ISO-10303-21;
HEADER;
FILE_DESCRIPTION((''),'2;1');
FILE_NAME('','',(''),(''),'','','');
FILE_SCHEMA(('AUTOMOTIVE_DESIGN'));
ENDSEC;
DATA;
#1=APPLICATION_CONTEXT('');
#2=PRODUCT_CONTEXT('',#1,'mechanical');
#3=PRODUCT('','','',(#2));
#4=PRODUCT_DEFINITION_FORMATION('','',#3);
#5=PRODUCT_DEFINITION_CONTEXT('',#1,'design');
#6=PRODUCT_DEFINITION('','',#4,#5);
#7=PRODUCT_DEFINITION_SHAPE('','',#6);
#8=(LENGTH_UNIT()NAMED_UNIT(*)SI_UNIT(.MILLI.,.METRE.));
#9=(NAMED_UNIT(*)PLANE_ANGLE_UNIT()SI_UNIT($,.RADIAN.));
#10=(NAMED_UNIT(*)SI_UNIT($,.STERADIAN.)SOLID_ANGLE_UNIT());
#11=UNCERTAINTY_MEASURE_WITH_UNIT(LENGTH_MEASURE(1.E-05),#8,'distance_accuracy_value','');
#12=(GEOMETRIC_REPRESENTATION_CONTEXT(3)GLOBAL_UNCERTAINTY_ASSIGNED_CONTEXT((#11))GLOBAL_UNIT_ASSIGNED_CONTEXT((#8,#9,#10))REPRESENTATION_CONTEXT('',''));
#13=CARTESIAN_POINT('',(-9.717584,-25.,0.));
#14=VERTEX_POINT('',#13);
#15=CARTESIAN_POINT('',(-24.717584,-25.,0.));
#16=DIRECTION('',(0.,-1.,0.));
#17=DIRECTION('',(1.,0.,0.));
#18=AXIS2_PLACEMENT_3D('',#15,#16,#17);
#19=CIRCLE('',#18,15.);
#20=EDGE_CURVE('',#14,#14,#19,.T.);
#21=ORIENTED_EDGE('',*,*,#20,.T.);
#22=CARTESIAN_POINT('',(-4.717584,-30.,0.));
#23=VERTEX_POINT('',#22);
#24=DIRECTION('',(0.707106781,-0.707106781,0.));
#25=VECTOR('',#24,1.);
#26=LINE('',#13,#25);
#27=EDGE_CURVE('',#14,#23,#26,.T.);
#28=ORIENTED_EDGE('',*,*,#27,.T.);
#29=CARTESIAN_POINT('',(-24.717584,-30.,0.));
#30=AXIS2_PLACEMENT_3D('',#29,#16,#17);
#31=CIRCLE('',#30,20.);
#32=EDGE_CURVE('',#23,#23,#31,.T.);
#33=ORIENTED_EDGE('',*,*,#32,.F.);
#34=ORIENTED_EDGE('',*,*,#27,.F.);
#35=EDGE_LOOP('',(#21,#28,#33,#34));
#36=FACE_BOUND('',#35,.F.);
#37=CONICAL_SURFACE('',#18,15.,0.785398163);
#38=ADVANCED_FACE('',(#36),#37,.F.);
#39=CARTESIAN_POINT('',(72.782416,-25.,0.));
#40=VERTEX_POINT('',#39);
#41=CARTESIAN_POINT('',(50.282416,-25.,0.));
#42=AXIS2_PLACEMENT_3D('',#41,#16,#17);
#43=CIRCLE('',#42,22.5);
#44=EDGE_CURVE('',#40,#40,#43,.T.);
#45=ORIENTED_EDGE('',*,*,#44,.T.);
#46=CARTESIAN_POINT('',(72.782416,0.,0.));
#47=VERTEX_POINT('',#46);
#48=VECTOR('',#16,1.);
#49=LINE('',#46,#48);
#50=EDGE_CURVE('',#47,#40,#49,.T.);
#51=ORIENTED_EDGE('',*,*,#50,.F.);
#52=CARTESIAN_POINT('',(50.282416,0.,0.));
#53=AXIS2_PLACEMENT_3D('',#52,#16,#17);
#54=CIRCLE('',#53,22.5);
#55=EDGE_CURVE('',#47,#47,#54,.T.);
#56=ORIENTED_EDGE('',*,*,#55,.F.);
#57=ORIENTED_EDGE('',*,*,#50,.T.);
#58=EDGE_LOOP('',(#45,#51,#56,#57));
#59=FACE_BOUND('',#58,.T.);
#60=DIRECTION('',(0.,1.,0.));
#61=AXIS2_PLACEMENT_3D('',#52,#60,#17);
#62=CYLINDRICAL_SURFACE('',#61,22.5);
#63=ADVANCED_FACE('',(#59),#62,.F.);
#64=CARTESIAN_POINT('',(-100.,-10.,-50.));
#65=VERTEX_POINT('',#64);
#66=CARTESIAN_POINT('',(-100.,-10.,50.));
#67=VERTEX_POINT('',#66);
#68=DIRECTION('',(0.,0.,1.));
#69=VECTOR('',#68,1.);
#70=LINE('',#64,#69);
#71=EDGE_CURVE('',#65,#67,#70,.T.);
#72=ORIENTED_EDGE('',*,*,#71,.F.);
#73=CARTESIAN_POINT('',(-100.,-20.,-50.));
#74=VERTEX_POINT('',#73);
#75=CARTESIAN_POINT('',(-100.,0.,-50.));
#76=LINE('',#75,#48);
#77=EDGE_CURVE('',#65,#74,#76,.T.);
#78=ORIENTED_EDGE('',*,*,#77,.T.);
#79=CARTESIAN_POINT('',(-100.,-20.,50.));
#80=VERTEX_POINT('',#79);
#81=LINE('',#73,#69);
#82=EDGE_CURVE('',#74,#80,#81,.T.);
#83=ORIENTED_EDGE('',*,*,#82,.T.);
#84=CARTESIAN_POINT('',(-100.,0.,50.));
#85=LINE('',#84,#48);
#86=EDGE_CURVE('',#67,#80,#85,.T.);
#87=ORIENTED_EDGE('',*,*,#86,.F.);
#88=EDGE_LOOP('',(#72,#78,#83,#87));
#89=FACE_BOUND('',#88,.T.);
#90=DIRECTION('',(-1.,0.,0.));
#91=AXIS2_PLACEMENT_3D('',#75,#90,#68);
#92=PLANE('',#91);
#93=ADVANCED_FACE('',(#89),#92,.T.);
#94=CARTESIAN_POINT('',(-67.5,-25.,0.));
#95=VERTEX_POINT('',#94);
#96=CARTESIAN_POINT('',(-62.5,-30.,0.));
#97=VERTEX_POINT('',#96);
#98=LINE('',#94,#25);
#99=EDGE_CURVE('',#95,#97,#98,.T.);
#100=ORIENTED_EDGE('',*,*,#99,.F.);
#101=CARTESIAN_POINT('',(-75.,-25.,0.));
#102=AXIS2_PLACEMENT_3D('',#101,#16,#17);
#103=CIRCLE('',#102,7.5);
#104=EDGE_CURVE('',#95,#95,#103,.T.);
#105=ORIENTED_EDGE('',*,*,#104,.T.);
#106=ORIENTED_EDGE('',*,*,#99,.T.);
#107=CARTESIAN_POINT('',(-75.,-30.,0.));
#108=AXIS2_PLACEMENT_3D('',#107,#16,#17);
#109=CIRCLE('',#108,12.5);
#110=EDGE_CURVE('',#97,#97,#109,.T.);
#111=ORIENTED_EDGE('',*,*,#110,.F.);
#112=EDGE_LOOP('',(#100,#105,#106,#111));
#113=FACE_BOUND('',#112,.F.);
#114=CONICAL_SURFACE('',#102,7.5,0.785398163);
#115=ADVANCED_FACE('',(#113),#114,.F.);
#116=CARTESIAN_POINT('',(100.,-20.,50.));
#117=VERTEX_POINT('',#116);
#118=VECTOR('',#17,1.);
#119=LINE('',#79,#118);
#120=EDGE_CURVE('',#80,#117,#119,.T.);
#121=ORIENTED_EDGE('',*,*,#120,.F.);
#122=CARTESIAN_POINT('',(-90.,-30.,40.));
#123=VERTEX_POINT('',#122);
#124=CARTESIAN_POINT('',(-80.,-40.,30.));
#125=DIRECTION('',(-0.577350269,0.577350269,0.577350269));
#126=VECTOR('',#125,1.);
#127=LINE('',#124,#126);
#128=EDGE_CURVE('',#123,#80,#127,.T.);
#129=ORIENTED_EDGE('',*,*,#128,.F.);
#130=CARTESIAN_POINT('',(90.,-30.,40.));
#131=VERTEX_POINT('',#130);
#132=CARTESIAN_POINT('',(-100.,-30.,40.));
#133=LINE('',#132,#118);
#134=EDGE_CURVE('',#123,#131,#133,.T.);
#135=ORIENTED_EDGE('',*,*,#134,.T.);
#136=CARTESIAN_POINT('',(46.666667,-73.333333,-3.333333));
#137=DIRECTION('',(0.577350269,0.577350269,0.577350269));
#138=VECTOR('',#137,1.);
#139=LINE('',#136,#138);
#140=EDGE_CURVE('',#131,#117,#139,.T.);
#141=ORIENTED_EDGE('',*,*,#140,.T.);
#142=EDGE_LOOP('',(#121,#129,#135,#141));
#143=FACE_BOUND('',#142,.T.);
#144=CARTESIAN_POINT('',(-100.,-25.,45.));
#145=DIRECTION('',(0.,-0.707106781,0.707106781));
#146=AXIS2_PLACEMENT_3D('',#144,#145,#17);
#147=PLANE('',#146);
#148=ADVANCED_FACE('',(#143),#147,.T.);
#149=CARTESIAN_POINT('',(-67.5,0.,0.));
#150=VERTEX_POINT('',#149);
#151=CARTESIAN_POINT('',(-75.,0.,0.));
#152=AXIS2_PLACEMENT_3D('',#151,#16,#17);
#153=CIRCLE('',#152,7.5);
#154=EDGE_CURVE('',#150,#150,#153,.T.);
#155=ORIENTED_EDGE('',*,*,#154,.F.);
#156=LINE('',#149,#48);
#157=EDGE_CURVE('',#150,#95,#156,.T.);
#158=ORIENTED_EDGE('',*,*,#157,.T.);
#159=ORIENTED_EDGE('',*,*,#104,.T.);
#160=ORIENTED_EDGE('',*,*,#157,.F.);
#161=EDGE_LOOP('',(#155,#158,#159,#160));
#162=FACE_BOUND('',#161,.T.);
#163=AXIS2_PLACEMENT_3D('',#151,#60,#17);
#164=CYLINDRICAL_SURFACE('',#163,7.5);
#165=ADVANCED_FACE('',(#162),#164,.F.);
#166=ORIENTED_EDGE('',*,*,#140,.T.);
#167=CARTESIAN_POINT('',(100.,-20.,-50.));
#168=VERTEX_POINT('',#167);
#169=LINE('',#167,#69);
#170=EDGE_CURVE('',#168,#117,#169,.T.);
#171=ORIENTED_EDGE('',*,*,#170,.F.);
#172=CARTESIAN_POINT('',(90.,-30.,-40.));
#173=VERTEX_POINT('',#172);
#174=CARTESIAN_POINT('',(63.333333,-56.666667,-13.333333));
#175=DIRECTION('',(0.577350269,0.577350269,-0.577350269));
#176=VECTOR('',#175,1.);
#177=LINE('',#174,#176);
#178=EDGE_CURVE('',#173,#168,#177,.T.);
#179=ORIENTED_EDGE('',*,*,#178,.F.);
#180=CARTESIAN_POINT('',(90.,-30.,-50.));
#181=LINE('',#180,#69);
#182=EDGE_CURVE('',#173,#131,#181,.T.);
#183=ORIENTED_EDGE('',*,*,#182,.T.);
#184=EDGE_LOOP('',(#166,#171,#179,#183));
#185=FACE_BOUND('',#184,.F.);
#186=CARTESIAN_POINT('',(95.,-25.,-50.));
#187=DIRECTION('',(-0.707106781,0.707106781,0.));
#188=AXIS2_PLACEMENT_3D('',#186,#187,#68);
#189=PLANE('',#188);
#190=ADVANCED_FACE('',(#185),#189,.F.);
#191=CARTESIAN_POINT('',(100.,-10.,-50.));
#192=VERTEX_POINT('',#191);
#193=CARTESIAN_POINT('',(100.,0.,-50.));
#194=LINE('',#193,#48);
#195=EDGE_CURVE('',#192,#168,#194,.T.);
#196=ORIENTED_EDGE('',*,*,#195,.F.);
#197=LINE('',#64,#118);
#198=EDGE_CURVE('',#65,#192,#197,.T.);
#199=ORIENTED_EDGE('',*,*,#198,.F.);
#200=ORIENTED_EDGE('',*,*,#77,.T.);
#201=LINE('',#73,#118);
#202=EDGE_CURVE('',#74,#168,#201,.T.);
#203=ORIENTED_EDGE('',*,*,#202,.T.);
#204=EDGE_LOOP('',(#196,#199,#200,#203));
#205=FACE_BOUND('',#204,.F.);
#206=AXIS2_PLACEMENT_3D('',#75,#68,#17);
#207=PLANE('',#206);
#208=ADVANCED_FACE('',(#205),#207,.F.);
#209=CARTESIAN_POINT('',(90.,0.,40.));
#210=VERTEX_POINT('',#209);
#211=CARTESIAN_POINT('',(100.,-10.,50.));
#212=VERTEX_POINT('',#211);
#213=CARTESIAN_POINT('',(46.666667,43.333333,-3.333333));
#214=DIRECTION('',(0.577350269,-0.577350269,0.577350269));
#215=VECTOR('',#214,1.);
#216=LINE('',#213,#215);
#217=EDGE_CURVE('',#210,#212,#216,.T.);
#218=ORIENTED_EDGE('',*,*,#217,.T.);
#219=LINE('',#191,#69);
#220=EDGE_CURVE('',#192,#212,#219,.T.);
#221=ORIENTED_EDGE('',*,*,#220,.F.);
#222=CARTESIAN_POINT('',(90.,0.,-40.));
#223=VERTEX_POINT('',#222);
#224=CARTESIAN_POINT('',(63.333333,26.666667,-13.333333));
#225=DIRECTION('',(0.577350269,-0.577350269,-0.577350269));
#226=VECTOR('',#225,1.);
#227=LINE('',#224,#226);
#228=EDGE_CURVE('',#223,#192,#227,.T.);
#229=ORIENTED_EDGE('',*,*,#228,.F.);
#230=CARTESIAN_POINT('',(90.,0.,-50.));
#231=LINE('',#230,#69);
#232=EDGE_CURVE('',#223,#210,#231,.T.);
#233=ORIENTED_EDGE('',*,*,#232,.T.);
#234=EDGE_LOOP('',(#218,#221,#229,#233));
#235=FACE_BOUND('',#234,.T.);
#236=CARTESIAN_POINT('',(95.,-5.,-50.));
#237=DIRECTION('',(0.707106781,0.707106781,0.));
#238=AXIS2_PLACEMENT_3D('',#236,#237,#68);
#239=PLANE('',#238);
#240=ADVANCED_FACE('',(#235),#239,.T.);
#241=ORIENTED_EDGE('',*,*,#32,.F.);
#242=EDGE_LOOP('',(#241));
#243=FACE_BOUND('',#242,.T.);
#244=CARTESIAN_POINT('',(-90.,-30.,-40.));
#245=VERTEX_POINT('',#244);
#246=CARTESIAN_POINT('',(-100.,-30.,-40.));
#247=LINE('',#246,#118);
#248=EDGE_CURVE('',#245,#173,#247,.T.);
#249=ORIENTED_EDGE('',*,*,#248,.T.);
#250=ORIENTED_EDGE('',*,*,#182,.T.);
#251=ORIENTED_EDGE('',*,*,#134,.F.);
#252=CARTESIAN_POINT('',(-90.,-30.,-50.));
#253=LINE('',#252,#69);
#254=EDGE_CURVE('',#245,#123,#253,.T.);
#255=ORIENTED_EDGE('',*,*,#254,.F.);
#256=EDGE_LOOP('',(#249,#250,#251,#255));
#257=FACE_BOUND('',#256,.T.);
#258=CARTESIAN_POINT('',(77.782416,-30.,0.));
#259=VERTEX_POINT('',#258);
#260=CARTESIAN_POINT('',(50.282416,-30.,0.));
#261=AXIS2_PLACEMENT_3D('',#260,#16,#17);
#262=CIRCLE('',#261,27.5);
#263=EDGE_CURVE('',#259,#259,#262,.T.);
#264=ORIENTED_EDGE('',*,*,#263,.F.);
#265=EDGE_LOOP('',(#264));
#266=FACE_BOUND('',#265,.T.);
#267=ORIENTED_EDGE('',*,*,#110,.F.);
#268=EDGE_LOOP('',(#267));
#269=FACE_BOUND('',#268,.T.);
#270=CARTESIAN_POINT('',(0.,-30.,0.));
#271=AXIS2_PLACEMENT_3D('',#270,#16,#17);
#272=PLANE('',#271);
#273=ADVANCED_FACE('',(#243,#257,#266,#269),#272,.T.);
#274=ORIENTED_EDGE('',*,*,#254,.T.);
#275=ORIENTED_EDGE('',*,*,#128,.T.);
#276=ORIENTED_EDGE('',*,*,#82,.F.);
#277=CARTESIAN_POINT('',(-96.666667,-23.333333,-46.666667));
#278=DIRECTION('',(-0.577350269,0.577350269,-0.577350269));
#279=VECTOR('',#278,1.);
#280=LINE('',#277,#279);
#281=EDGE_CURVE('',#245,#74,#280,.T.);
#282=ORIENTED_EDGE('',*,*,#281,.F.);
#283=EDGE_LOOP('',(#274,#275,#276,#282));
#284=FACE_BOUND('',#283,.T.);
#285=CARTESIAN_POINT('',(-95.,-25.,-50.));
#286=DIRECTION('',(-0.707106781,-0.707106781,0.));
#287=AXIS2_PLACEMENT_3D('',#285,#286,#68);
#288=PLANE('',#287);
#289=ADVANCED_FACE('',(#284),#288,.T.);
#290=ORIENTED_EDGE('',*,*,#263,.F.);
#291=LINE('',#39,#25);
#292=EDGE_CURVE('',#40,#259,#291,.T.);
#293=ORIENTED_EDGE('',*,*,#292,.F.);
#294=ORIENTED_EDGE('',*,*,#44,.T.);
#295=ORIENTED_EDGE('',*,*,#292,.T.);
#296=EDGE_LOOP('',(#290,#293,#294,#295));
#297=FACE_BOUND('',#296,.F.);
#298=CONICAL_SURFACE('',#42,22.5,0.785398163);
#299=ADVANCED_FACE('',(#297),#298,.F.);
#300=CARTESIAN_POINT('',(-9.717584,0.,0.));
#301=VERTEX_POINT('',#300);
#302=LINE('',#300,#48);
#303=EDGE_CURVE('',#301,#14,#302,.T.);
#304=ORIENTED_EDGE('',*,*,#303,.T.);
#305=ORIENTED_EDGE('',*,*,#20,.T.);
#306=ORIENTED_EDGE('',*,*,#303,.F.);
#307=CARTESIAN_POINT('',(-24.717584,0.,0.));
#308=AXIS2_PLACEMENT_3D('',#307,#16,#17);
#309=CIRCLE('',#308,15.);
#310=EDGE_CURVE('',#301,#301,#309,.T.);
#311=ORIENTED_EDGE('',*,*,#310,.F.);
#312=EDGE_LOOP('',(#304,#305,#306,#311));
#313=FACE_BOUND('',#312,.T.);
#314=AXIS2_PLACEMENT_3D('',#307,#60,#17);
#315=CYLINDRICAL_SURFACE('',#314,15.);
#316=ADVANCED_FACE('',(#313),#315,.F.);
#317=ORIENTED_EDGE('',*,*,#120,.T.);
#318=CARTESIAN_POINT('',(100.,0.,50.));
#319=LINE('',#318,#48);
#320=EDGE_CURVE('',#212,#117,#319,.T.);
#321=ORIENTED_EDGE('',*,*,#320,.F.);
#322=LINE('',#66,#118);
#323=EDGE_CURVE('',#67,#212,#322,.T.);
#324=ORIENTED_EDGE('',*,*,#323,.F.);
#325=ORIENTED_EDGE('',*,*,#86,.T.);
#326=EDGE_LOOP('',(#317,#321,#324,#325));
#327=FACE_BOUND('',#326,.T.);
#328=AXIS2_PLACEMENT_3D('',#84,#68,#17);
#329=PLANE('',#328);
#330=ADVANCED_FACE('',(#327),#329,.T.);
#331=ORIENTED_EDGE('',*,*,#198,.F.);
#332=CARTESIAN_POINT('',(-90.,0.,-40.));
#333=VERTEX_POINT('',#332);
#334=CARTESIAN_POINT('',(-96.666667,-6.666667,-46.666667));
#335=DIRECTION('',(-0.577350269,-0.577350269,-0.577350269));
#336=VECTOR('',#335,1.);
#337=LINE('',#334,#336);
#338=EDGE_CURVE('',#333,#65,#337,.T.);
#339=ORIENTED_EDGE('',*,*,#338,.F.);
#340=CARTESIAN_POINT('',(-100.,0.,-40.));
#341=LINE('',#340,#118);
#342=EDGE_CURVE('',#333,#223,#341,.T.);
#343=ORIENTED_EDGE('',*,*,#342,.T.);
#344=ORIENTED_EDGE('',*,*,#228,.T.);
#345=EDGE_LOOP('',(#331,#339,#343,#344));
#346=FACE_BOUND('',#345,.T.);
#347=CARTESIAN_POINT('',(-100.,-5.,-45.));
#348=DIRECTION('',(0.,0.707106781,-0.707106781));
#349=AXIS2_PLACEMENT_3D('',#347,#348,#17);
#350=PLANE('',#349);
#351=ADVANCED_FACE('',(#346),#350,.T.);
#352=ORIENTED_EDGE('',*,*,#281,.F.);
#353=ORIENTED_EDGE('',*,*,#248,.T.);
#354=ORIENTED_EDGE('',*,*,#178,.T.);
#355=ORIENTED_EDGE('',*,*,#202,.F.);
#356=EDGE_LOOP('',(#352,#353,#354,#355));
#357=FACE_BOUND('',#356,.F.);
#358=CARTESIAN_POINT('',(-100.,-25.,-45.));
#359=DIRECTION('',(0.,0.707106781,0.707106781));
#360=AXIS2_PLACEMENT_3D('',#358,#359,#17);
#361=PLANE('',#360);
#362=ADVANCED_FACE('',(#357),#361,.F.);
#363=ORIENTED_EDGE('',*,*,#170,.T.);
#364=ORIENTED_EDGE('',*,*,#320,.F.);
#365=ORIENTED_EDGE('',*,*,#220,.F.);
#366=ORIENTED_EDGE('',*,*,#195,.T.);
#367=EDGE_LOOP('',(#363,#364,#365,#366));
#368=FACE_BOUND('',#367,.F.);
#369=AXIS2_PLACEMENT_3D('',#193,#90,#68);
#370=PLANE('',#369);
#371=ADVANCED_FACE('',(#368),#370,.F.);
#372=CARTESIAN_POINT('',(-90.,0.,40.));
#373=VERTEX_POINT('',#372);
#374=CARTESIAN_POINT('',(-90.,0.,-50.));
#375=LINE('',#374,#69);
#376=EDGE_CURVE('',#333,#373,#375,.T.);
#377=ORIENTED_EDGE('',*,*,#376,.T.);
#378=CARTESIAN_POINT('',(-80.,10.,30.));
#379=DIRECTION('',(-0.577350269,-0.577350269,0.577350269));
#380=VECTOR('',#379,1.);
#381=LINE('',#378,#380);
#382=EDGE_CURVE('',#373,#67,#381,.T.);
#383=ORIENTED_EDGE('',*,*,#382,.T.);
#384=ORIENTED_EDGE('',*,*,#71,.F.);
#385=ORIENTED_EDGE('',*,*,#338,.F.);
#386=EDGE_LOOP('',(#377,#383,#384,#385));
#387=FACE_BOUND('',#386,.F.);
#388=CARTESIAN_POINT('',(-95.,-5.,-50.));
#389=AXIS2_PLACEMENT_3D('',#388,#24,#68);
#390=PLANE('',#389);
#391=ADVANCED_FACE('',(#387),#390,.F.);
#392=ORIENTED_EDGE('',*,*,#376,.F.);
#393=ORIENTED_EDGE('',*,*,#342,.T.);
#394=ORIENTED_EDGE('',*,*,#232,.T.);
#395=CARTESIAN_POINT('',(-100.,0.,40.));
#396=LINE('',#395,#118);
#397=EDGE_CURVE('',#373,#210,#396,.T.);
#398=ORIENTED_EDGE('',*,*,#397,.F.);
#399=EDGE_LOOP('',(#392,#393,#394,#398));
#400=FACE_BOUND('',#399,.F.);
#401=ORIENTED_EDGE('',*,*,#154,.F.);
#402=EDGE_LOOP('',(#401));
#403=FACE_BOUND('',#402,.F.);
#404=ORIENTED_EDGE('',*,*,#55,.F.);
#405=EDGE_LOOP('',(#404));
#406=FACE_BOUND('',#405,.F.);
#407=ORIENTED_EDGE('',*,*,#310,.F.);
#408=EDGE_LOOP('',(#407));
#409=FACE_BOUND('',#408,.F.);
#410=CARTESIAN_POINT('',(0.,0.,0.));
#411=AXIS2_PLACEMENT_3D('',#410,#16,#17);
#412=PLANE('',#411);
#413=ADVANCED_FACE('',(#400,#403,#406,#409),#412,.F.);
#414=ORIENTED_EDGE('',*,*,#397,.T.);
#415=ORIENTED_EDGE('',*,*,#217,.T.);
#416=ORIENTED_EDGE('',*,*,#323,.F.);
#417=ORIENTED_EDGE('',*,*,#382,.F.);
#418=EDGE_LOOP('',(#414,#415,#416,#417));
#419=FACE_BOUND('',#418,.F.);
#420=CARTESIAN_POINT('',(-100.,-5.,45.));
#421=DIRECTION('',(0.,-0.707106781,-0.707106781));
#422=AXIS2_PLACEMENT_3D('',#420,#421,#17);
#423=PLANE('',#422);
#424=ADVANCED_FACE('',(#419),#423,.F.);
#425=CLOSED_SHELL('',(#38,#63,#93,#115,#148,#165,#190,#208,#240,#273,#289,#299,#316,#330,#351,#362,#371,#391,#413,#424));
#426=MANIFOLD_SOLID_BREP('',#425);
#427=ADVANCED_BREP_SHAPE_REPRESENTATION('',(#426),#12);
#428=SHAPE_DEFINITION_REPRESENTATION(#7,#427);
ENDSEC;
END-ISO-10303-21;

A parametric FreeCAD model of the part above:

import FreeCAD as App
import Part
import Sketcher
from FreeCAD import Vector


def edges_at(feature, points):
    """Names of the edges that pass closest to the given points."""
    edges = feature.Shape.Edges
    near = lambda p: min(range(len(edges)), key=lambda i: edges[i].distToShape(Part.Vertex(*p))[0])
    return sorted({f"Edge{near(p) + 1}" for p in points})


def add_polygon(sketch, points):
    """Adds a closed chain of lines whose ends are joined by coincident constraints."""
    first, n = sketch.GeometryCount, len(points)
    for a, b in zip(points, points[1:] + points[:1]):
        sketch.addGeometry(Part.LineSegment(App.Vector(*a, 0), App.Vector(*b, 0)), False)
    for i in range(n):
        sketch.addConstraint(Sketcher.Constraint("Coincident", first + i, 2, first + (i + 1) % n, 1))

doc = App.newDocument("Part")
body = doc.addObject("PartDesign::Body", "Body")

# Sketch on XZ plane
sketch1 = body.newObject("Sketcher::SketchObject", "Sketch")
sketch1.AttachmentSupport = (doc.getObject("XZ_Plane"), [""])
sketch1.MapMode = "FlatFace"
add_polygon(sketch1, [(-100, 50), (-100, -50), (100, -50), (100, 50)])  # lines 0-3
sketch1.addGeometry(Part.Circle(Vector(-75, 0, 0), Vector(0, 0, 1), 7.5), False)  # 4
sketch1.addGeometry(Part.Circle(Vector(-24.717584, 0, 0), Vector(0, 0, 1), 15), False)  # 5
sketch1.addGeometry(Part.Circle(Vector(50.282416, 0, 0), Vector(0, 0, 1), 22.5), False)  # 6
sketch1.addConstraint(Sketcher.Constraint("Vertical", 0))
sketch1.addConstraint(Sketcher.Constraint("Horizontal", 1))
sketch1.addConstraint(Sketcher.Constraint("Vertical", 2))
sketch1.addConstraint(Sketcher.Constraint("Horizontal", 3))
sketch1.addConstraint(Sketcher.Constraint("Symmetric", 0, 2, 2, 2, -1, 1))
sketch1.addConstraint(Sketcher.Constraint("PointOnObject", 4, 3, -1))
sketch1.addConstraint(Sketcher.Constraint("PointOnObject", 5, 3, -1))
sketch1.addConstraint(Sketcher.Constraint("PointOnObject", 6, 3, -1))
sketch1.addConstraint(Sketcher.Constraint("Diameter", 4, 15.0))
sketch1.addConstraint(Sketcher.Constraint("Diameter", 5, 30.0))
sketch1.addConstraint(Sketcher.Constraint("Diameter", 6, 45.0))
sketch1.addConstraint(Sketcher.Constraint("DistanceX", 1, 1, 1, 2, 200.0))
sketch1.addConstraint(Sketcher.Constraint("DistanceY", 0, 2, 0, 1, 100.0))
sketch1.addConstraint(Sketcher.Constraint("DistanceX", 4, 3, -1, 1, 75.0))
sketch1.addConstraint(Sketcher.Constraint("DistanceX", 5, 3, 6, 3, 75.0))
sketch1.addConstraint(Sketcher.Constraint("DistanceX", 5, 3, -1, 1, 24.717584))
pad1 = body.newObject("PartDesign::Pad", "Pad")
pad1.Profile = sketch1
pad1.Length = 30
doc.recompute()

chamfer = body.newObject("PartDesign::Chamfer", "Chamfer")
chamfer.Base = (pad1, edges_at(pad1, [(-39.718, -30, 0), (-82.5, -30, 0), (27.782, -30, 0)]))
chamfer.ChamferType = "Two distances"
chamfer.Size = 5
chamfer.Size2 = 5
doc.recompute()

chamfer2 = body.newObject("PartDesign::Chamfer", "Chamfer001")
chamfer2.Base = (chamfer, edges_at(chamfer, [
    (0, -30, 50),
    (-100, -30, 0),
    (0, -30, -50),
    (100, -30, 0),
    (100, 0, 0),
    (0, 0, 50),
    (0, 0, -50),
    (-100, 0, 0),
]))
chamfer2.ChamferType = "Two distances"
chamfer2.Size = 10
chamfer2.Size2 = 10

doc.recompute()
